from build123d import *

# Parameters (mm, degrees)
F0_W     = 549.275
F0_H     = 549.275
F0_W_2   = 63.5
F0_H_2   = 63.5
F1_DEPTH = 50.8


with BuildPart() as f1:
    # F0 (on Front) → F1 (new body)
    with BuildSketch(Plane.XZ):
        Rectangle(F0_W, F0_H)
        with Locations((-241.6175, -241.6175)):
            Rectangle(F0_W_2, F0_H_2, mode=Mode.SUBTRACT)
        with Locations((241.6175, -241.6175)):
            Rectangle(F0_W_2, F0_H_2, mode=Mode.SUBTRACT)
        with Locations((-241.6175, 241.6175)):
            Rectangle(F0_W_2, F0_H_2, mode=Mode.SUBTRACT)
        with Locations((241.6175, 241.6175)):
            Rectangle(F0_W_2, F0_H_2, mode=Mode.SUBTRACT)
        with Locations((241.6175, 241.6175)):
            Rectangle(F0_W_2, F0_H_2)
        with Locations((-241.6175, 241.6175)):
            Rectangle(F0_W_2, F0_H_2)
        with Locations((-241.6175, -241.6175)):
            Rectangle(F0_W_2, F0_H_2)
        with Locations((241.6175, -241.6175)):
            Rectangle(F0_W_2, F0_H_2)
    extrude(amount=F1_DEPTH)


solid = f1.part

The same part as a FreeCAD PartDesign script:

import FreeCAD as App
import Part
import Sketcher
Q = App.Units.Quantity


def add_polygon(sketch, points):
    """Adds a closed chain of lines whose ends are joined by coincident constraints."""
    first, n = sketch.GeometryCount, len(points)
    for a, b in zip(points, points[1:] + points[:1]):
        sketch.addGeometry(Part.LineSegment(App.Vector(*a, 0), App.Vector(*b, 0)), False)
    for i in range(n):
        sketch.addConstraint(Sketcher.Constraint("Coincident", first + i, 2, first + (i + 1) % n, 1))

doc = App.newDocument("Part")
body = doc.addObject("PartDesign::Body", "Body")

# Sketch on XZ plane
sketch1 = body.newObject("Sketcher::SketchObject", "Sketch")
sketch1.AttachmentSupport = (doc.getObject("XZ_Plane"), [""])
sketch1.MapMode = "FlatFace"
add_polygon(sketch1, [(-275, 275), (-275, -275), (275, -275), (275, 275)])  # lines 0-3
sketch1.addConstraint(Sketcher.Constraint("Vertical", 0))
sketch1.addConstraint(Sketcher.Constraint("Horizontal", 1))
sketch1.addConstraint(Sketcher.Constraint("Vertical", 2))
sketch1.addConstraint(Sketcher.Constraint("Horizontal", 3))
sketch1.addConstraint(Sketcher.Constraint("Symmetric", 0, 2, 2, 2, -1, 1))
sketch1.addConstraint(Sketcher.Constraint("Equal", 3, 0))
sketch1.addConstraint(Sketcher.Constraint("DistanceX", 1, 1, 1, 2, Q("21.625 in")))
pad1 = body.newObject("PartDesign::Pad", "Pad")
pad1.Profile = sketch1
pad1.Length = Q("2 in")

doc.recompute()
